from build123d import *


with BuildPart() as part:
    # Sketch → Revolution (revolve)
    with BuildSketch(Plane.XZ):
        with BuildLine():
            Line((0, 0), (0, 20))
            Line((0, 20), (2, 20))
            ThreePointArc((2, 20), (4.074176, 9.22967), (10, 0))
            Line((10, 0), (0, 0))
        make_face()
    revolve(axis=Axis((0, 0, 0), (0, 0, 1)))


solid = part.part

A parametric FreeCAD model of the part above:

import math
import FreeCAD as App
import Part
import Sketcher

V = App.Vector
Q = App.Units.Quantity

doc = App.newDocument("Part")
params = doc.addObject("Spreadsheet::Sheet", "Params")
for row, (alias, value) in enumerate([
    ("sketch1_radius", "28.999999 mm"),
    ("sketch1_width", "10 mm"),
    ("sketch1_width2", "2 mm"),
    ("sketch1_height", "20 mm"),
    ("revolution_angle", "360 deg"),
], start=1):
    params.set(f"A{row}", alias)
    params.set(f"B{row}", "=" + value)
    params.setAlias(f"B{row}", alias)

body = doc.addObject("PartDesign::Body", "Body")

# Sketch on XZ plane
sketch1 = doc.addObject("Sketcher::SketchObject", "Sketch")
body.addObject(sketch1)
sketch1.AttachmentSupport = (doc.XZ_Plane, [""])
sketch1.MapMode = "FlatFace"
sketch1.addGeometry(Part.LineSegment(V(0, 20, 0), V(0, 0, 0)), False)
sketch1.addGeometry(Part.LineSegment(V(0, 0, 0), V(10, 0, 0)), False)
sketch1.addGeometry(Part.ArcOfCircle(Part.Circle(V(31, 20, 0), V(0, 0, 1), 29), math.radians(180), math.radians(224)), False)
sketch1.addGeometry(Part.LineSegment(V(2, 20, 0), V(0, 20, 0)), False)
sketch1.addConstraint(Sketcher.Constraint("Coincident", 0, 2, 1, 1))
sketch1.addConstraint(Sketcher.Constraint("Coincident", 1, 2, 2, 2))
sketch1.addConstraint(Sketcher.Constraint("Coincident", 2, 1, 3, 1))
sketch1.addConstraint(Sketcher.Constraint("Coincident", 3, 2, 0, 1))
sketch1.addConstraint(Sketcher.Constraint("Vertical", 0))
sketch1.addConstraint(Sketcher.Constraint("Horizontal", 1))
sketch1.addConstraint(Sketcher.Constraint("Horizontal", 3))
sketch1.addConstraint(Sketcher.Constraint("Coincident", 0, 2, -1, 1))
sketch1.addConstraint(Sketcher.Constraint("Radius", 2, Q("28.999999 mm")))
sketch1.addConstraint(Sketcher.Constraint("DistanceX", 1, 1, 1, 2, Q("10 mm")))
sketch1.addConstraint(Sketcher.Constraint("DistanceX", 3, 2, 3, 1, Q("2 mm")))
sketch1.addConstraint(Sketcher.Constraint("DistanceY", 0, 2, 0, 1, Q("20 mm")))
sketch1.setExpression("Constraints[8]", "Params.sketch1_radius")
sketch1.setExpression("Constraints[9]", "Params.sketch1_width")
sketch1.setExpression("Constraints[10]", "Params.sketch1_width2")
sketch1.setExpression("Constraints[11]", "Params.sketch1_height")
revolution = doc.addObject("PartDesign::Revolution", "Revolution")
body.addObject(revolution)
revolution.Profile = sketch1
revolution.ReferenceAxis = (sketch1, ["V_Axis"])
revolution.setExpression("Angle", "Params.revolution_angle")

doc.recompute()
